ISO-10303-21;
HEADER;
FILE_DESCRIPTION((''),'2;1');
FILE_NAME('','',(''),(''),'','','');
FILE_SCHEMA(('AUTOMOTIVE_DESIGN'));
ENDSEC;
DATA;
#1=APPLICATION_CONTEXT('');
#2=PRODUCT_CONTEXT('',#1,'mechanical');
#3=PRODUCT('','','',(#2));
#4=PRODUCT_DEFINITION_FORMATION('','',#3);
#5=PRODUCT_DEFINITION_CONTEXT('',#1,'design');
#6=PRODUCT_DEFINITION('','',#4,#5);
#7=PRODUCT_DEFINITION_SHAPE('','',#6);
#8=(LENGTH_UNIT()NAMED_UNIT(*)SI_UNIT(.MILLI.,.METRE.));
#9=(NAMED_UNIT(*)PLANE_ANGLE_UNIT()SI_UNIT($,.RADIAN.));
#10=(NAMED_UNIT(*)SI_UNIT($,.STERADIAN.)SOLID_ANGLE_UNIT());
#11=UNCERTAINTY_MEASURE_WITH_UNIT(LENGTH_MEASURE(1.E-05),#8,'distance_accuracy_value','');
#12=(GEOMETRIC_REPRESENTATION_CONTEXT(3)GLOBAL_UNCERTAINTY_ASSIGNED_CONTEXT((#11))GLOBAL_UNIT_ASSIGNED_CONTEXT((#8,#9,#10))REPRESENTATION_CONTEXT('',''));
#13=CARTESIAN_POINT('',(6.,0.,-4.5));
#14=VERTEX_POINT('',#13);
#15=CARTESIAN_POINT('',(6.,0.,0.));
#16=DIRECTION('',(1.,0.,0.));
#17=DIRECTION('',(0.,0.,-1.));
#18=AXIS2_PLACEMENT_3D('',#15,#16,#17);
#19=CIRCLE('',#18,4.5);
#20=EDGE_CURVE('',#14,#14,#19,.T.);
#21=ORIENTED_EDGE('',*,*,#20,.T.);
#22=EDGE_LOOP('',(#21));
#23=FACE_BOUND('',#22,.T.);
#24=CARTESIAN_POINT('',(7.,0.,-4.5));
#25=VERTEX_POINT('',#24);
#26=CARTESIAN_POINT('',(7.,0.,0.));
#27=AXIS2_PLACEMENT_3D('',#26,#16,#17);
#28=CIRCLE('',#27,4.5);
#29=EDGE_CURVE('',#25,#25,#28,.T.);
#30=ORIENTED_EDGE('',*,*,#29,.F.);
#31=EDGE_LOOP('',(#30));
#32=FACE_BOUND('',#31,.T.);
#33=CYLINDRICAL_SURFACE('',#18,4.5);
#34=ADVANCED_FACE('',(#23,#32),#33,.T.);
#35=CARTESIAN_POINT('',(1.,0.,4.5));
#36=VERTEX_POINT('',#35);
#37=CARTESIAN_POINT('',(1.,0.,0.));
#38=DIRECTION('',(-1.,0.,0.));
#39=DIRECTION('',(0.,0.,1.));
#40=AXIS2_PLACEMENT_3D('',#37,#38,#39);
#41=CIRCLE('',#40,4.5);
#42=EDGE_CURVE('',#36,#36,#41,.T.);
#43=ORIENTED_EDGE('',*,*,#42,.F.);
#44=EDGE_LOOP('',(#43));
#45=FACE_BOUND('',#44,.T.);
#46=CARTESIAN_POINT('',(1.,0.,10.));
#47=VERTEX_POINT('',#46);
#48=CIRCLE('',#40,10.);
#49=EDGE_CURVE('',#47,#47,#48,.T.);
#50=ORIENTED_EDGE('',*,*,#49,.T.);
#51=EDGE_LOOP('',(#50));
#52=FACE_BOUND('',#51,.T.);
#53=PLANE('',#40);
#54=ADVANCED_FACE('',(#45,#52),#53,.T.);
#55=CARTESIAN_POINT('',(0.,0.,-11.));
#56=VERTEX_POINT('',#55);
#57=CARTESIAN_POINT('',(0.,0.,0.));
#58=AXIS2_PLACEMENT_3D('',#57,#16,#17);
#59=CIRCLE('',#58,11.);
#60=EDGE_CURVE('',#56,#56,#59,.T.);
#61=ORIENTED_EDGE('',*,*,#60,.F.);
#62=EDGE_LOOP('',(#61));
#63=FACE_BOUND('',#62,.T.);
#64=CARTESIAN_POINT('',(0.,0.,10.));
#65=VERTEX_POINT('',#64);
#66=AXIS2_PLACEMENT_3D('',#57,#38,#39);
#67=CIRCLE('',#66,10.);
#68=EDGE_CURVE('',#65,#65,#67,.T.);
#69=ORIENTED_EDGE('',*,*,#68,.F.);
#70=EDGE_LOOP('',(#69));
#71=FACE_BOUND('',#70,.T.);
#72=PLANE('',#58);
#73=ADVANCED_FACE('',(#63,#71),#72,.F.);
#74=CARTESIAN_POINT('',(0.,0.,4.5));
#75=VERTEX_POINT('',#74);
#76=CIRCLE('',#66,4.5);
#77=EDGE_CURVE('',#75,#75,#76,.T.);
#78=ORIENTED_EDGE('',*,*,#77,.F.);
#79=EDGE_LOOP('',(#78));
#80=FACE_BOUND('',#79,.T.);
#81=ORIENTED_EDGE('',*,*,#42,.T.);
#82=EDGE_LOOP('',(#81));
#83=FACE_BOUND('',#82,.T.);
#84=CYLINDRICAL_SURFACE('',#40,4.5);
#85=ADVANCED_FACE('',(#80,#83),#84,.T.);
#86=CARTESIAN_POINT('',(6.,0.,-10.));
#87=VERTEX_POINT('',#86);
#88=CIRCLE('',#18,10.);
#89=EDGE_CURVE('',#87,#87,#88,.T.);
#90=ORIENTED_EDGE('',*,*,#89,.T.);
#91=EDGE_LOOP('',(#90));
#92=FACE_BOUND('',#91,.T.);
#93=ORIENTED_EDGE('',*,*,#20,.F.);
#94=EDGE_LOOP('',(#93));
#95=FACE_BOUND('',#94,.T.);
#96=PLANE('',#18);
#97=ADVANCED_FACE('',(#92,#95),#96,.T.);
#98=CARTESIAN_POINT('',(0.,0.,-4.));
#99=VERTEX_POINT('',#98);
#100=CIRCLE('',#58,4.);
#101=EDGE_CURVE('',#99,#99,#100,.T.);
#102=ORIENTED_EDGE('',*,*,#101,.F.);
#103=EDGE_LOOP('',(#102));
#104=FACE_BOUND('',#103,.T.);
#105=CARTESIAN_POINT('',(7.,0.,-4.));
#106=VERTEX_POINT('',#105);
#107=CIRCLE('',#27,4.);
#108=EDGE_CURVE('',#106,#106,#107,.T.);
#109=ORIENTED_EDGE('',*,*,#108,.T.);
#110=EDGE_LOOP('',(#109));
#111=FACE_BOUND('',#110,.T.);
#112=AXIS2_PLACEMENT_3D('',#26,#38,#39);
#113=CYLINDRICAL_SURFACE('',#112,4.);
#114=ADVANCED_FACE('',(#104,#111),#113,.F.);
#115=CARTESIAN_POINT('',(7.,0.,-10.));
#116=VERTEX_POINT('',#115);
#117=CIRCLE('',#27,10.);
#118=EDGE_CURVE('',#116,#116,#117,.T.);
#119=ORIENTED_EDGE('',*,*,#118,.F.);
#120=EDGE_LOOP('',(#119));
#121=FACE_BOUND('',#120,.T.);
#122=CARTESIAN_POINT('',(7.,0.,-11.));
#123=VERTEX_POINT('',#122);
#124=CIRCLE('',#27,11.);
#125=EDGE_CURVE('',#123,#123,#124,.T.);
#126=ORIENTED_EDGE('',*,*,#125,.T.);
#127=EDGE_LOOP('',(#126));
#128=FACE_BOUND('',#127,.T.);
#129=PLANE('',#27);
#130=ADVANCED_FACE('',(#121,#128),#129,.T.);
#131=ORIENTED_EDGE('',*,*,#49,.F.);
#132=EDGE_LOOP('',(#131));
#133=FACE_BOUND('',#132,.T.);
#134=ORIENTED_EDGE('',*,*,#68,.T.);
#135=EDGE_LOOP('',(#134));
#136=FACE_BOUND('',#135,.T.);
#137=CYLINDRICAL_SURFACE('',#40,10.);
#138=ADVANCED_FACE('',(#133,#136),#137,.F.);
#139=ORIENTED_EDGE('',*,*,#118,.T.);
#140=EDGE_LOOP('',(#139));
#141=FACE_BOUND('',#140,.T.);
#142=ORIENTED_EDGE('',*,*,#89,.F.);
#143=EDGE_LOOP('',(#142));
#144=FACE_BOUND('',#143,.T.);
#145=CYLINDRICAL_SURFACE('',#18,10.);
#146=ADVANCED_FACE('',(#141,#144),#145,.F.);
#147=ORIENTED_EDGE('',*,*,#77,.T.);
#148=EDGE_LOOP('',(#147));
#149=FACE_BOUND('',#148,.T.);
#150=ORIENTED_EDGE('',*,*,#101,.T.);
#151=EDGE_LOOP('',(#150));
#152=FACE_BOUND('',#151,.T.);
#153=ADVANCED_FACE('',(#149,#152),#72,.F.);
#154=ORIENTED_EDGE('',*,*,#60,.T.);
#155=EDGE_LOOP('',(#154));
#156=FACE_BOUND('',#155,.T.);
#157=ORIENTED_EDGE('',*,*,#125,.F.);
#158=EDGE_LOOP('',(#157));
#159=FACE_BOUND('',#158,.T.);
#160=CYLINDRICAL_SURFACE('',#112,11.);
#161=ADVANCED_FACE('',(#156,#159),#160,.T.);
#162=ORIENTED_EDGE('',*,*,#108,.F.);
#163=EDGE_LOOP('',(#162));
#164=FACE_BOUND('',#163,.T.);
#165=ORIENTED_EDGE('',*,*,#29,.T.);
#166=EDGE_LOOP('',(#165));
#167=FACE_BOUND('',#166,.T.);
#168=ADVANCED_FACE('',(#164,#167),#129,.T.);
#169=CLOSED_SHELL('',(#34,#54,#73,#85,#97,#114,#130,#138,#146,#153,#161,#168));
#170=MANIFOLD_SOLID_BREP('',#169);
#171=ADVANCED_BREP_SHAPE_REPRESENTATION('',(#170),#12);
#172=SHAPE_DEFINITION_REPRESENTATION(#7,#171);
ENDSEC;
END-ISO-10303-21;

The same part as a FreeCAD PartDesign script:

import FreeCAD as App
import Part
import Sketcher

doc = App.newDocument("Part")
body = doc.addObject("PartDesign::Body", "Body")

# Sketch on YZ plane
sketch1 = body.newObject("Sketcher::SketchObject", "Sketch")
sketch1.AttachmentSupport = (doc.getObject("YZ_Plane"), [""])
sketch1.MapMode = "FlatFace"
sketch1.addGeometry(Part.Circle(App.Vector(0, 0, 0), App.Vector(0, 0, 1), 11), False)
sketch1.addGeometry(Part.Circle(App.Vector(0, 0, 0), App.Vector(0, 0, 1), 4), False)
sketch1.addConstraint(Sketcher.Constraint("Coincident", 0, 3, -1, 1))
sketch1.addConstraint(Sketcher.Constraint("Coincident", 1, 3, -1, 1))
sketch1.addConstraint(Sketcher.Constraint("Diameter", 0, 22.0))
sketch1.addConstraint(Sketcher.Constraint("Diameter", 1, 8.0))
pad1 = body.newObject("PartDesign::Pad", "Pad")
pad1.Profile = sketch1
pad1.Length = 7

# Sketch on YZ plane
sketch2 = body.newObject("Sketcher::SketchObject", "Sketch001")
sketch2.AttachmentSupport = (doc.getObject("YZ_Plane"), [""])
sketch2.MapMode = "FlatFace"
sketch2.AttachmentOffset = App.Placement(App.Vector(0, 0, 7), App.Rotation())
sketch2.addGeometry(Part.Circle(App.Vector(0, 0, 0), App.Vector(0, 0, 1), 10), False)
sketch2.addGeometry(Part.Circle(App.Vector(0, 0, 0), App.Vector(0, 0, 1), 4.5), False)
sketch2.addConstraint(Sketcher.Constraint("Coincident", 0, 3, -1, 1))
sketch2.addConstraint(Sketcher.Constraint("Coincident", 1, 3, -1, 1))
sketch2.addConstraint(Sketcher.Constraint("Diameter", 0, 20.0))
sketch2.addConstraint(Sketcher.Constraint("Diameter", 1, 9.0))
pocket1 = body.newObject("PartDesign::Pocket", "Pocket")
pocket1.Profile = sketch2
pocket1.Length = 1

# Sketch on YZ plane
sketch3 = body.newObject("Sketcher::SketchObject", "Sketch002")
sketch3.AttachmentSupport = (doc.getObject("YZ_Plane"), [""])
sketch3.MapMode = "FlatFace"
sketch3.AttachmentOffset = App.Placement(App.Vector(0, 0, 1), App.Rotation())
sketch3.addGeometry(Part.Circle(App.Vector(0, 0, 0), App.Vector(0, 0, 1), 10), False)
sketch3.addGeometry(Part.Circle(App.Vector(0, 0, 0), App.Vector(0, 0, 1), 4.5), False)
sketch3.addConstraint(Sketcher.Constraint("Coincident", 0, 3, -1, 1))
sketch3.addConstraint(Sketcher.Constraint("Coincident", 1, 3, -1, 1))
sketch3.addConstraint(Sketcher.Constraint("Diameter", 0, 20.0))
sketch3.addConstraint(Sketcher.Constraint("Diameter", 1, 9.0))
pocket2 = body.newObject("PartDesign::Pocket", "Pocket001")
pocket2.Profile = sketch3
pocket2.Length = 1

doc.recompute()
